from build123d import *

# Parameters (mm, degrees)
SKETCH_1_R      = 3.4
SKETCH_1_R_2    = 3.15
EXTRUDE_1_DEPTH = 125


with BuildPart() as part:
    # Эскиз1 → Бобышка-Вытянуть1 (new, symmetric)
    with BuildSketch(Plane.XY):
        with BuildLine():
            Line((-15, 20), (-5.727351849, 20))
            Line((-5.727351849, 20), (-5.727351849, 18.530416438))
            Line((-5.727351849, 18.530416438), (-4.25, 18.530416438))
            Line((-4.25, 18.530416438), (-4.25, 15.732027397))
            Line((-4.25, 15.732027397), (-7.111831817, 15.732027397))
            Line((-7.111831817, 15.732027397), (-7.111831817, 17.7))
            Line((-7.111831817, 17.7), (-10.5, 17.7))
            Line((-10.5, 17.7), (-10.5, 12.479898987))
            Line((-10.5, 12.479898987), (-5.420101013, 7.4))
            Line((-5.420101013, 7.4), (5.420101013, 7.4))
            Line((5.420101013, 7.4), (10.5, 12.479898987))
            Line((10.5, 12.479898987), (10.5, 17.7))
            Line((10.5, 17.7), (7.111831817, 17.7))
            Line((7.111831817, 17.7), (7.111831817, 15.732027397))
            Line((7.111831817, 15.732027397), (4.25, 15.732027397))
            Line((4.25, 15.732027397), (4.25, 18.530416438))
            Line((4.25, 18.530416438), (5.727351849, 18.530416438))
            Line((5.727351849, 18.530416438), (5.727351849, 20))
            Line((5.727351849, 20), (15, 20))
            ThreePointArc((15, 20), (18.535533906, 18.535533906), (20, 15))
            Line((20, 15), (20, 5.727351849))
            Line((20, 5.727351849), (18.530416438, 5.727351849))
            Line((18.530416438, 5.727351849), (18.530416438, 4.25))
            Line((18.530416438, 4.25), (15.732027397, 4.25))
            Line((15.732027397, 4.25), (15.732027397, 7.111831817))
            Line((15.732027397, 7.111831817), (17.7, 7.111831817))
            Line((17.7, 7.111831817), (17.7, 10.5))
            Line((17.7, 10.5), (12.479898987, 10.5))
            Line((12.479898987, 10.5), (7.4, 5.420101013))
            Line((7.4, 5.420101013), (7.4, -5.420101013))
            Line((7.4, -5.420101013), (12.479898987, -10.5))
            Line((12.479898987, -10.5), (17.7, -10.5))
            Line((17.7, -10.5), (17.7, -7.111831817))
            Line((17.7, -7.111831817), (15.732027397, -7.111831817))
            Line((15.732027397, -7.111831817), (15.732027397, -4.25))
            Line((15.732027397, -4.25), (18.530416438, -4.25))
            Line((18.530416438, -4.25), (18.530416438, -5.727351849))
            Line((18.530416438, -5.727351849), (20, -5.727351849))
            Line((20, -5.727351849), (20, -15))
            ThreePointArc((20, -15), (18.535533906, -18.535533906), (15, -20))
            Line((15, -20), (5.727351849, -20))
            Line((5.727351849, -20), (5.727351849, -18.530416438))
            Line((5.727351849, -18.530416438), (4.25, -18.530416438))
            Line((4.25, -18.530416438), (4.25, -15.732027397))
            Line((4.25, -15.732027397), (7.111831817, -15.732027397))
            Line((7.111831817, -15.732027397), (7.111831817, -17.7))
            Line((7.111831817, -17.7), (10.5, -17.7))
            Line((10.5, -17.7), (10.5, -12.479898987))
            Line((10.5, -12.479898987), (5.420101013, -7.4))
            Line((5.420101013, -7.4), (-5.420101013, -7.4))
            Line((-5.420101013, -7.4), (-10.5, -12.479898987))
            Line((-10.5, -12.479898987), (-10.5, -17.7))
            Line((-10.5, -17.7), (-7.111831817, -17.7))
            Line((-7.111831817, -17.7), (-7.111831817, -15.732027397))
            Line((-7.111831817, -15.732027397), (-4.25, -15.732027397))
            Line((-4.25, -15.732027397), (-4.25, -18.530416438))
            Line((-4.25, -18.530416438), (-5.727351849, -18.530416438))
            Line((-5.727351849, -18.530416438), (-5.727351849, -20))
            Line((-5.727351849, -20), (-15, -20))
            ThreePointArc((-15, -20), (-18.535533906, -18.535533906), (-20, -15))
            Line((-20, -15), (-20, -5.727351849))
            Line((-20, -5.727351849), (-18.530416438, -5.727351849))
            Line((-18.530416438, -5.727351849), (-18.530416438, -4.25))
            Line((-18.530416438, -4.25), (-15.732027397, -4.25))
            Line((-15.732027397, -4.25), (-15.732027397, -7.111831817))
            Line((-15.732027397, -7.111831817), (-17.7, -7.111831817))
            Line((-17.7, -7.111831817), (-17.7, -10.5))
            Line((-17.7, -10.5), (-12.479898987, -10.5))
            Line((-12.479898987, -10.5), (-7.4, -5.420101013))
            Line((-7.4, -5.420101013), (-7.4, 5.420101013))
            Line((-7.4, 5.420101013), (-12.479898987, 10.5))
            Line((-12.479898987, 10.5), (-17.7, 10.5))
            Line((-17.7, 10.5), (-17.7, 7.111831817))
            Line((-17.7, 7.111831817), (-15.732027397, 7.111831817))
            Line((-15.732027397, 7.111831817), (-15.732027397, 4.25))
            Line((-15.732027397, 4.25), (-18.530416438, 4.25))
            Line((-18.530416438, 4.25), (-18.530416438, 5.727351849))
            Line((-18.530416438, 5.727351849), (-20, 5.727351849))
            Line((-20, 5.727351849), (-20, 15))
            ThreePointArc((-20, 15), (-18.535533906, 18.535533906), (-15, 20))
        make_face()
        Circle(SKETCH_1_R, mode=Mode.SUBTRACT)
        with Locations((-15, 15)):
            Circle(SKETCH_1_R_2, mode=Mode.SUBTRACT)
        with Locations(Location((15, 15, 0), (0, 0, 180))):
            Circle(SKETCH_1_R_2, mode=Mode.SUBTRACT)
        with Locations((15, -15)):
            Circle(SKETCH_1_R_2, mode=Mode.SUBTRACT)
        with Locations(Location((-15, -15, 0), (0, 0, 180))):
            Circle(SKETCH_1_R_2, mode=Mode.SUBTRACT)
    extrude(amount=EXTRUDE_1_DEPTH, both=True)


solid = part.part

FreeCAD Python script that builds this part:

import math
import FreeCAD as App
import Part
import Sketcher

V = App.Vector

doc = App.newDocument("Part")
body = doc.addObject("PartDesign::Body", "Body")

sketch1 = body.newObject("Sketcher::SketchObject", "Sketch")
sketch1.AttachmentSupport = (doc.getObject("XY_Plane"), [""])
sketch1.MapMode = "FlatFace"
sketch1.addGeometry(Part.LineSegment(V(-5.727352, 20, 0), V(-15, 20, 0)), False)
sketch1.addGeometry(Part.ArcOfCircle(Part.Circle(V(-15, 15, 0), V(0, 0, 1), 5), math.radians(90), math.radians(180)), False)
sketch1.addGeometry(Part.LineSegment(V(-20, 15, 0), V(-20, 5.727352, 0)), False)
sketch1.addGeometry(Part.LineSegment(V(-20, 5.727352, 0), V(-18.530416, 5.727352, 0)), False)
sketch1.addGeometry(Part.LineSegment(V(-18.530416, 5.727352, 0), V(-18.530416, 4.25, 0)), False)
sketch1.addGeometry(Part.LineSegment(V(-18.530416, 4.25, 0), V(-15.732027, 4.25, 0)), False)
sketch1.addGeometry(Part.LineSegment(V(-15.732027, 4.25, 0), V(-15.732027, 7.111832, 0)), False)
sketch1.addGeometry(Part.LineSegment(V(-15.732027, 7.111832, 0), V(-17.7, 7.111832, 0)), False)
sketch1.addGeometry(Part.LineSegment(V(-17.7, 7.111832, 0), V(-17.7, 10.5, 0)), False)
sketch1.addGeometry(Part.LineSegment(V(-17.7, 10.5, 0), V(-12.479899, 10.5, 0)), False)
sketch1.addGeometry(Part.LineSegment(V(-12.479899, 10.5, 0), V(-7.4, 5.420101, 0)), False)
sketch1.addGeometry(Part.LineSegment(V(-7.4, 5.420101, 0), V(-7.4, -5.420101, 0)), False)
sketch1.addGeometry(Part.LineSegment(V(-7.4, -5.420101, 0), V(-12.479899, -10.5, 0)), False)
sketch1.addGeometry(Part.LineSegment(V(-12.479899, -10.5, 0), V(-17.7, -10.5, 0)), False)
sketch1.addGeometry(Part.LineSegment(V(-17.7, -10.5, 0), V(-17.7, -7.111832, 0)), False)
sketch1.addGeometry(Part.LineSegment(V(-17.7, -7.111832, 0), V(-15.732027, -7.111832, 0)), False)
sketch1.addGeometry(Part.LineSegment(V(-15.732027, -7.111832, 0), V(-15.732027, -4.25, 0)), False)
sketch1.addGeometry(Part.LineSegment(V(-15.732027, -4.25, 0), V(-18.530416, -4.25, 0)), False)
sketch1.addGeometry(Part.LineSegment(V(-18.530416, -4.25, 0), V(-18.530416, -5.727352, 0)), False)
sketch1.addGeometry(Part.LineSegment(V(-18.530416, -5.727352, 0), V(-20, -5.727352, 0)), False)
sketch1.addGeometry(Part.LineSegment(V(-20, -5.727352, 0), V(-20, -15, 0)), False)
sketch1.addGeometry(Part.ArcOfCircle(Part.Circle(V(-15, -15, 0), V(0, 0, 1), 5), math.radians(180), math.radians(270)), False)
sketch1.addGeometry(Part.LineSegment(V(-15, -20, 0), V(-5.727352, -20, 0)), False)
sketch1.addGeometry(Part.LineSegment(V(-5.727352, -20, 0), V(-5.727352, -18.530416, 0)), False)
sketch1.addGeometry(Part.LineSegment(V(-5.727352, -18.530416, 0), V(-4.25, -18.530416, 0)), False)
sketch1.addGeometry(Part.LineSegment(V(-4.25, -18.530416, 0), V(-4.25, -15.732027, 0)), False)
sketch1.addGeometry(Part.LineSegment(V(-4.25, -15.732027, 0), V(-7.111832, -15.732027, 0)), False)
sketch1.addGeometry(Part.LineSegment(V(-7.111832, -15.732027, 0), V(-7.111832, -17.7, 0)), False)
sketch1.addGeometry(Part.LineSegment(V(-7.111832, -17.7, 0), V(-10.5, -17.7, 0)), False)
sketch1.addGeometry(Part.LineSegment(V(-10.5, -17.7, 0), V(-10.5, -12.479899, 0)), False)
sketch1.addGeometry(Part.LineSegment(V(-10.5, -12.479899, 0), V(-5.420101, -7.4, 0)), False)
sketch1.addGeometry(Part.LineSegment(V(-5.420101, -7.4, 0), V(5.420101, -7.4, 0)), False)
sketch1.addGeometry(Part.LineSegment(V(5.420101, -7.4, 0), V(10.5, -12.479899, 0)), False)
sketch1.addGeometry(Part.LineSegment(V(10.5, -12.479899, 0), V(10.5, -17.7, 0)), False)
sketch1.addGeometry(Part.LineSegment(V(10.5, -17.7, 0), V(7.111832, -17.7, 0)), False)
sketch1.addGeometry(Part.LineSegment(V(7.111832, -17.7, 0), V(7.111832, -15.732027, 0)), False)
sketch1.addGeometry(Part.LineSegment(V(7.111832, -15.732027, 0), V(4.25, -15.732027, 0)), False)
sketch1.addGeometry(Part.LineSegment(V(4.25, -15.732027, 0), V(4.25, -18.530416, 0)), False)
sketch1.addGeometry(Part.LineSegment(V(4.25, -18.530416, 0), V(5.727352, -18.530416, 0)), False)
sketch1.addGeometry(Part.LineSegment(V(5.727352, -18.530416, 0), V(5.727352, -20, 0)), False)
sketch1.addGeometry(Part.LineSegment(V(5.727352, -20, 0), V(15, -20, 0)), False)
sketch1.addGeometry(Part.ArcOfCircle(Part.Circle(V(15, -15, 0), V(0, 0, 1), 5), math.radians(-90), math.radians(0)), False)
sketch1.addGeometry(Part.LineSegment(V(20, -15, 0), V(20, -5.727352, 0)), False)
sketch1.addGeometry(Part.LineSegment(V(20, -5.727352, 0), V(18.530416, -5.727352, 0)), False)
sketch1.addGeometry(Part.LineSegment(V(18.530416, -5.727352, 0), V(18.530416, -4.25, 0)), False)
sketch1.addGeometry(Part.LineSegment(V(18.530416, -4.25, 0), V(15.732027, -4.25, 0)), False)
sketch1.addGeometry(Part.LineSegment(V(15.732027, -4.25, 0), V(15.732027, -7.111832, 0)), False)
sketch1.addGeometry(Part.LineSegment(V(15.732027, -7.111832, 0), V(17.7, -7.111832, 0)), False)
sketch1.addGeometry(Part.LineSegment(V(17.7, -7.111832, 0), V(17.7, -10.5, 0)), False)
sketch1.addGeometry(Part.LineSegment(V(17.7, -10.5, 0), V(12.479899, -10.5, 0)), False)
sketch1.addGeometry(Part.LineSegment(V(12.479899, -10.5, 0), V(7.4, -5.420101, 0)), False)
sketch1.addGeometry(Part.LineSegment(V(7.4, -5.420101, 0), V(7.4, 5.420101, 0)), False)
sketch1.addGeometry(Part.LineSegment(V(7.4, 5.420101, 0), V(12.479899, 10.5, 0)), False)
sketch1.addGeometry(Part.LineSegment(V(12.479899, 10.5, 0), V(17.7, 10.5, 0)), False)
sketch1.addGeometry(Part.LineSegment(V(17.7, 10.5, 0), V(17.7, 7.111832, 0)), False)
sketch1.addGeometry(Part.LineSegment(V(17.7, 7.111832, 0), V(15.732027, 7.111832, 0)), False)
sketch1.addGeometry(Part.LineSegment(V(15.732027, 7.111832, 0), V(15.732027, 4.25, 0)), False)
sketch1.addGeometry(Part.LineSegment(V(15.732027, 4.25, 0), V(18.530416, 4.25, 0)), False)
sketch1.addGeometry(Part.LineSegment(V(18.530416, 4.25, 0), V(18.530416, 5.727352, 0)), False)
sketch1.addGeometry(Part.LineSegment(V(18.530416, 5.727352, 0), V(20, 5.727352, 0)), False)
sketch1.addGeometry(Part.LineSegment(V(20, 5.727352, 0), V(20, 15, 0)), False)
sketch1.addGeometry(Part.ArcOfCircle(Part.Circle(V(15, 15, 0), V(0, 0, 1), 5), math.radians(0), math.radians(90)), False)
sketch1.addGeometry(Part.LineSegment(V(15, 20, 0), V(5.727352, 20, 0)), False)
sketch1.addGeometry(Part.LineSegment(V(5.727352, 20, 0), V(5.727352, 18.530416, 0)), False)
sketch1.addGeometry(Part.LineSegment(V(5.727352, 18.530416, 0), V(4.25, 18.530416, 0)), False)
sketch1.addGeometry(Part.LineSegment(V(4.25, 18.530416, 0), V(4.25, 15.732027, 0)), False)
sketch1.addGeometry(Part.LineSegment(V(4.25, 15.732027, 0), V(7.111832, 15.732027, 0)), False)
sketch1.addGeometry(Part.LineSegment(V(7.111832, 15.732027, 0), V(7.111832, 17.7, 0)), False)
sketch1.addGeometry(Part.LineSegment(V(7.111832, 17.7, 0), V(10.5, 17.7, 0)), False)
sketch1.addGeometry(Part.LineSegment(V(10.5, 17.7, 0), V(10.5, 12.479899, 0)), False)
sketch1.addGeometry(Part.LineSegment(V(10.5, 12.479899, 0), V(5.420101, 7.4, 0)), False)
sketch1.addGeometry(Part.LineSegment(V(5.420101, 7.4, 0), V(-5.420101, 7.4, 0)), False)
sketch1.addGeometry(Part.LineSegment(V(-5.420101, 7.4, 0), V(-10.5, 12.479899, 0)), False)
sketch1.addGeometry(Part.LineSegment(V(-10.5, 12.479899, 0), V(-10.5, 17.7, 0)), False)
sketch1.addGeometry(Part.LineSegment(V(-10.5, 17.7, 0), V(-7.111832, 17.7, 0)), False)
sketch1.addGeometry(Part.LineSegment(V(-7.111832, 17.7, 0), V(-7.111832, 15.732027, 0)), False)
sketch1.addGeometry(Part.LineSegment(V(-7.111832, 15.732027, 0), V(-4.25, 15.732027, 0)), False)
sketch1.addGeometry(Part.LineSegment(V(-4.25, 15.732027, 0), V(-4.25, 18.530416, 0)), False)
sketch1.addGeometry(Part.LineSegment(V(-4.25, 18.530416, 0), V(-5.727352, 18.530416, 0)), False)
sketch1.addGeometry(Part.LineSegment(V(-5.727352, 18.530416, 0), V(-5.727352, 20, 0)), False)
sketch1.addGeometry(Part.Circle(V(15, -15, 0), V(0, 0, 1), 3.15), False)
sketch1.addGeometry(Part.Circle(V(-15, -15, 0), V(0, 0, 1), 3.15), False)
sketch1.addGeometry(Part.Circle(V(15, 15, 0), V(0, 0, 1), 3.15), False)
sketch1.addGeometry(Part.Circle(V(0, 0, 0), V(0, 0, 1), 3.4), False)
sketch1.addGeometry(Part.Circle(V(-15, 15, 0), V(0, 0, 1), 3.15), False)
sketch1.addConstraint(Sketcher.Constraint("Tangent", 0, 2, 1, 1))
sketch1.addConstraint(Sketcher.Constraint("Tangent", 1, 2, 2, 1))
sketch1.addConstraint(Sketcher.Constraint("Coincident", 2, 2, 3, 1))
sketch1.addConstraint(Sketcher.Constraint("Coincident", 3, 2, 4, 1))
sketch1.addConstraint(Sketcher.Constraint("Coincident", 4, 2, 5, 1))
sketch1.addConstraint(Sketcher.Constraint("Coincident", 5, 2, 6, 1))
sketch1.addConstraint(Sketcher.Constraint("Coincident", 6, 2, 7, 1))
sketch1.addConstraint(Sketcher.Constraint("Coincident", 7, 2, 8, 1))
sketch1.addConstraint(Sketcher.Constraint("Coincident", 8, 2, 9, 1))
sketch1.addConstraint(Sketcher.Constraint("Coincident", 9, 2, 10, 1))
sketch1.addConstraint(Sketcher.Constraint("Coincident", 10, 2, 11, 1))
sketch1.addConstraint(Sketcher.Constraint("Coincident", 11, 2, 12, 1))
sketch1.addConstraint(Sketcher.Constraint("Coincident", 12, 2, 13, 1))
sketch1.addConstraint(Sketcher.Constraint("Coincident", 13, 2, 14, 1))
sketch1.addConstraint(Sketcher.Constraint("Coincident", 14, 2, 15, 1))
sketch1.addConstraint(Sketcher.Constraint("Coincident", 15, 2, 16, 1))
sketch1.addConstraint(Sketcher.Constraint("Coincident", 16, 2, 17, 1))
sketch1.addConstraint(Sketcher.Constraint("Coincident", 17, 2, 18, 1))
sketch1.addConstraint(Sketcher.Constraint("Coincident", 18, 2, 19, 1))
sketch1.addConstraint(Sketcher.Constraint("Coincident", 19, 2, 20, 1))
sketch1.addConstraint(Sketcher.Constraint("Tangent", 20, 2, 21, 1))
sketch1.addConstraint(Sketcher.Constraint("Tangent", 21, 2, 22, 1))
sketch1.addConstraint(Sketcher.Constraint("Coincident", 22, 2, 23, 1))
sketch1.addConstraint(Sketcher.Constraint("Coincident", 23, 2, 24, 1))
sketch1.addConstraint(Sketcher.Constraint("Coincident", 24, 2, 25, 1))
sketch1.addConstraint(Sketcher.Constraint("Coincident", 25, 2, 26, 1))
sketch1.addConstraint(Sketcher.Constraint("Coincident", 26, 2, 27, 1))
sketch1.addConstraint(Sketcher.Constraint("Coincident", 27, 2, 28, 1))
sketch1.addConstraint(Sketcher.Constraint("Coincident", 28, 2, 29, 1))
sketch1.addConstraint(Sketcher.Constraint("Coincident", 29, 2, 30, 1))
sketch1.addConstraint(Sketcher.Constraint("Coincident", 30, 2, 31, 1))
sketch1.addConstraint(Sketcher.Constraint("Coincident", 31, 2, 32, 1))
sketch1.addConstraint(Sketcher.Constraint("Coincident", 32, 2, 33, 1))
sketch1.addConstraint(Sketcher.Constraint("Coincident", 33, 2, 34, 1))
sketch1.addConstraint(Sketcher.Constraint("Coincident", 34, 2, 35, 1))
sketch1.addConstraint(Sketcher.Constraint("Coincident", 35, 2, 36, 1))
sketch1.addConstraint(Sketcher.Constraint("Coincident", 36, 2, 37, 1))
sketch1.addConstraint(Sketcher.Constraint("Coincident", 37, 2, 38, 1))
sketch1.addConstraint(Sketcher.Constraint("Coincident", 38, 2, 39, 1))
sketch1.addConstraint(Sketcher.Constraint("Coincident", 39, 2, 40, 1))
sketch1.addConstraint(Sketcher.Constraint("Tangent", 40, 2, 41, 1))
sketch1.addConstraint(Sketcher.Constraint("Tangent", 41, 2, 42, 1))
sketch1.addConstraint(Sketcher.Constraint("Coincident", 42, 2, 43, 1))
sketch1.addConstraint(Sketcher.Constraint("Coincident", 43, 2, 44, 1))
sketch1.addConstraint(Sketcher.Constraint("Coincident", 44, 2, 45, 1))
sketch1.addConstraint(Sketcher.Constraint("Coincident", 45, 2, 46, 1))
sketch1.addConstraint(Sketcher.Constraint("Coincident", 46, 2, 47, 1))
sketch1.addConstraint(Sketcher.Constraint("Coincident", 47, 2, 48, 1))
sketch1.addConstraint(Sketcher.Constraint("Coincident", 48, 2, 49, 1))
sketch1.addConstraint(Sketcher.Constraint("Coincident", 49, 2, 50, 1))
sketch1.addConstraint(Sketcher.Constraint("Coincident", 50, 2, 51, 1))
sketch1.addConstraint(Sketcher.Constraint("Coincident", 51, 2, 52, 1))
sketch1.addConstraint(Sketcher.Constraint("Coincident", 52, 2, 53, 1))
sketch1.addConstraint(Sketcher.Constraint("Coincident", 53, 2, 54, 1))
sketch1.addConstraint(Sketcher.Constraint("Coincident", 54, 2, 55, 1))
sketch1.addConstraint(Sketcher.Constraint("Coincident", 55, 2, 56, 1))
sketch1.addConstraint(Sketcher.Constraint("Coincident", 56, 2, 57, 1))
sketch1.addConstraint(Sketcher.Constraint("Coincident", 57, 2, 58, 1))
sketch1.addConstraint(Sketcher.Constraint("Coincident", 58, 2, 59, 1))
sketch1.addConstraint(Sketcher.Constraint("Coincident", 59, 2, 60, 1))
sketch1.addConstraint(Sketcher.Constraint("Tangent", 60, 2, 61, 1))
sketch1.addConstraint(Sketcher.Constraint("Tangent", 61, 2, 62, 1))
sketch1.addConstraint(Sketcher.Constraint("Coincident", 62, 2, 63, 1))
sketch1.addConstraint(Sketcher.Constraint("Coincident", 63, 2, 64, 1))
sketch1.addConstraint(Sketcher.Constraint("Coincident", 64, 2, 65, 1))
sketch1.addConstraint(Sketcher.Constraint("Coincident", 65, 2, 66, 1))
sketch1.addConstraint(Sketcher.Constraint("Coincident", 66, 2, 67, 1))
sketch1.addConstraint(Sketcher.Constraint("Coincident", 67, 2, 68, 1))
sketch1.addConstraint(Sketcher.Constraint("Coincident", 68, 2, 69, 1))
sketch1.addConstraint(Sketcher.Constraint("Coincident", 69, 2, 70, 1))
sketch1.addConstraint(Sketcher.Constraint("Coincident", 70, 2, 71, 1))
sketch1.addConstraint(Sketcher.Constraint("Coincident", 71, 2, 72, 1))
sketch1.addConstraint(Sketcher.Constraint("Coincident", 72, 2, 73, 1))
sketch1.addConstraint(Sketcher.Constraint("Coincident", 73, 2, 74, 1))
sketch1.addConstraint(Sketcher.Constraint("Coincident", 74, 2, 75, 1))
sketch1.addConstraint(Sketcher.Constraint("Coincident", 75, 2, 76, 1))
sketch1.addConstraint(Sketcher.Constraint("Coincident", 76, 2, 77, 1))
sketch1.addConstraint(Sketcher.Constraint("Coincident", 77, 2, 78, 1))
sketch1.addConstraint(Sketcher.Constraint("Coincident", 78, 2, 79, 1))
sketch1.addConstraint(Sketcher.Constraint("Coincident", 79, 2, 0, 1))
sketch1.addConstraint(Sketcher.Constraint("Horizontal", 0))
sketch1.addConstraint(Sketcher.Constraint("Vertical", 2))
sketch1.addConstraint(Sketcher.Constraint("Horizontal", 3))
sketch1.addConstraint(Sketcher.Constraint("Vertical", 4))
sketch1.addConstraint(Sketcher.Constraint("Horizontal", 5))
sketch1.addConstraint(Sketcher.Constraint("Vertical", 6))
sketch1.addConstraint(Sketcher.Constraint("Horizontal", 7))
sketch1.addConstraint(Sketcher.Constraint("Vertical", 8))
sketch1.addConstraint(Sketcher.Constraint("Horizontal", 9))
sketch1.addConstraint(Sketcher.Constraint("Vertical", 11))
sketch1.addConstraint(Sketcher.Constraint("Horizontal", 13))
sketch1.addConstraint(Sketcher.Constraint("Vertical", 14))
sketch1.addConstraint(Sketcher.Constraint("Horizontal", 15))
sketch1.addConstraint(Sketcher.Constraint("Vertical", 16))
sketch1.addConstraint(Sketcher.Constraint("Horizontal", 17))
sketch1.addConstraint(Sketcher.Constraint("Vertical", 18))
sketch1.addConstraint(Sketcher.Constraint("Horizontal", 19))
sketch1.addConstraint(Sketcher.Constraint("Vertical", 20))
sketch1.addConstraint(Sketcher.Constraint("Horizontal", 22))
sketch1.addConstraint(Sketcher.Constraint("Vertical", 23))
sketch1.addConstraint(Sketcher.Constraint("Horizontal", 24))
sketch1.addConstraint(Sketcher.Constraint("Vertical", 25))
sketch1.addConstraint(Sketcher.Constraint("Horizontal", 26))
sketch1.addConstraint(Sketcher.Constraint("Vertical", 27))
sketch1.addConstraint(Sketcher.Constraint("Horizontal", 28))
sketch1.addConstraint(Sketcher.Constraint("Vertical", 29))
sketch1.addConstraint(Sketcher.Constraint("Horizontal", 31))
sketch1.addConstraint(Sketcher.Constraint("Vertical", 33))
sketch1.addConstraint(Sketcher.Constraint("Horizontal", 34))
sketch1.addConstraint(Sketcher.Constraint("Vertical", 35))
sketch1.addConstraint(Sketcher.Constraint("Horizontal", 36))
sketch1.addConstraint(Sketcher.Constraint("Vertical", 37))
sketch1.addConstraint(Sketcher.Constraint("Horizontal", 38))
sketch1.addConstraint(Sketcher.Constraint("Vertical", 39))
sketch1.addConstraint(Sketcher.Constraint("Horizontal", 40))
sketch1.addConstraint(Sketcher.Constraint("Vertical", 42))
sketch1.addConstraint(Sketcher.Constraint("Horizontal", 43))
sketch1.addConstraint(Sketcher.Constraint("Vertical", 44))
sketch1.addConstraint(Sketcher.Constraint("Horizontal", 45))
sketch1.addConstraint(Sketcher.Constraint("Vertical", 46))
sketch1.addConstraint(Sketcher.Constraint("Horizontal", 47))
sketch1.addConstraint(Sketcher.Constraint("Vertical", 48))
sketch1.addConstraint(Sketcher.Constraint("Horizontal", 49))
sketch1.addConstraint(Sketcher.Constraint("Vertical", 51))
sketch1.addConstraint(Sketcher.Constraint("Horizontal", 53))
sketch1.addConstraint(Sketcher.Constraint("Vertical", 54))
sketch1.addConstraint(Sketcher.Constraint("Horizontal", 55))
sketch1.addConstraint(Sketcher.Constraint("Vertical", 56))
sketch1.addConstraint(Sketcher.Constraint("Horizontal", 57))
sketch1.addConstraint(Sketcher.Constraint("Vertical", 58))
sketch1.addConstraint(Sketcher.Constraint("Horizontal", 59))
sketch1.addConstraint(Sketcher.Constraint("Vertical", 60))
sketch1.addConstraint(Sketcher.Constraint("Horizontal", 62))
sketch1.addConstraint(Sketcher.Constraint("Vertical", 63))
sketch1.addConstraint(Sketcher.Constraint("Horizontal", 64))
sketch1.addConstraint(Sketcher.Constraint("Vertical", 65))
sketch1.addConstraint(Sketcher.Constraint("Horizontal", 66))
sketch1.addConstraint(Sketcher.Constraint("Vertical", 67))
sketch1.addConstraint(Sketcher.Constraint("Horizontal", 68))
sketch1.addConstraint(Sketcher.Constraint("Vertical", 69))
sketch1.addConstraint(Sketcher.Constraint("Horizontal", 71))
sketch1.addConstraint(Sketcher.Constraint("Vertical", 73))
sketch1.addConstraint(Sketcher.Constraint("Horizontal", 74))
sketch1.addConstraint(Sketcher.Constraint("Vertical", 75))
sketch1.addConstraint(Sketcher.Constraint("Horizontal", 76))
sketch1.addConstraint(Sketcher.Constraint("Vertical", 77))
sketch1.addConstraint(Sketcher.Constraint("Horizontal", 78))
sketch1.addConstraint(Sketcher.Constraint("Vertical", 79))
sketch1.addConstraint(Sketcher.Constraint("Coincident", 83, 3, -1, 1))
sketch1.addConstraint(Sketcher.Constraint("Coincident", 80, 3, 41, 3))
sketch1.addConstraint(Sketcher.Constraint("Coincident", 81, 3, 21, 3))
sketch1.addConstraint(Sketcher.Constraint("Coincident", 82, 3, 61, 3))
sketch1.addConstraint(Sketcher.Constraint("Coincident", 84, 3, 1, 3))
sketch1.addConstraint(Sketcher.Constraint("Equal", 1, 21))
sketch1.addConstraint(Sketcher.Constraint("Equal", 21, 41))
sketch1.addConstraint(Sketcher.Constraint("Equal", 41, 61))
sketch1.addConstraint(Sketcher.Constraint("Equal", 80, 81))
sketch1.addConstraint(Sketcher.Constraint("Equal", 81, 82))
sketch1.addConstraint(Sketcher.Constraint("Equal", 82, 84))
sketch1.addConstraint(Sketcher.Constraint("Symmetric", 1, 3, 41, 3, -1, 1))
sketch1.addConstraint(Sketcher.Constraint("Symmetric", 21, 3, 61, 3, -1, 1))
sketch1.addConstraint(Sketcher.Constraint("Symmetric", 3, 2, 43, 2, -1, 1))
sketch1.addConstraint(Sketcher.Constraint("Symmetric", 5, 2, 45, 2, -1, 1))
sketch1.addConstraint(Sketcher.Constraint("Symmetric", 7, 2, 47, 2, -1, 1))
sketch1.addConstraint(Sketcher.Constraint("Symmetric", 9, 2, 49, 2, -1, 1))
sketch1.addConstraint(Sketcher.Constraint("Symmetric", 10, 2, 50, 2, -1, 1))
sketch1.addConstraint(Sketcher.Constraint("Symmetric", 12, 2, 52, 2, -1, 1))
sketch1.addConstraint(Sketcher.Constraint("Symmetric", 14, 2, 54, 2, -1, 1))
sketch1.addConstraint(Sketcher.Constraint("Symmetric", 16, 2, 56, 2, -1, 1))
sketch1.addConstraint(Sketcher.Constraint("Symmetric", 18, 2, 58, 2, -1, 1))
sketch1.addConstraint(Sketcher.Constraint("Symmetric", 23, 2, 63, 2, -1, 1))
sketch1.addConstraint(Sketcher.Constraint("Symmetric", 25, 2, 65, 2, -1, 1))
sketch1.addConstraint(Sketcher.Constraint("Symmetric", 27, 2, 67, 2, -1, 1))
sketch1.addConstraint(Sketcher.Constraint("Symmetric", 29, 2, 69, 2, -1, 1))
sketch1.addConstraint(Sketcher.Constraint("Symmetric", 30, 2, 70, 2, -1, 1))
sketch1.addConstraint(Sketcher.Constraint("Symmetric", 32, 2, 72, 2, -1, 1))
sketch1.addConstraint(Sketcher.Constraint("Symmetric", 34, 2, 74, 2, -1, 1))
sketch1.addConstraint(Sketcher.Constraint("Symmetric", 36, 2, 76, 2, -1, 1))
sketch1.addConstraint(Sketcher.Constraint("Symmetric", 38, 2, 78, 2, -1, 1))
sketch1.addConstraint(Sketcher.Constraint("Symmetric", 21, 3, 41, 3, -2))
sketch1.addConstraint(Sketcher.Constraint("Symmetric", 29, 2, 32, 2, -2))
sketch1.addConstraint(Sketcher.Constraint("Symmetric", 27, 2, 34, 2, -2))
sketch1.addConstraint(Sketcher.Constraint("Symmetric", 25, 2, 36, 2, -2))
sketch1.addConstraint(Sketcher.Constraint("Symmetric", 23, 2, 38, 2, -2))
sketch1.addConstraint(Sketcher.Constraint("Symmetric", 18, 2, 43, 2, -2))
sketch1.addConstraint(Sketcher.Constraint("Symmetric", 16, 2, 45, 2, -2))
sketch1.addConstraint(Sketcher.Constraint("Symmetric", 14, 2, 47, 2, -2))
sketch1.addConstraint(Sketcher.Constraint("Symmetric", 12, 2, 49, 2, -2))
sketch1.addConstraint(Sketcher.Constraint("Perpendicular", 10, 12))
sketch1.addConstraint(Sketcher.Constraint("Parallel", 12, 30))
sketch1.addConstraint(Sketcher.Constraint("Perpendicular", 30, 32))
sketch1.addConstraint(Sketcher.Constraint("Perpendicular", 50, 52))
sketch1.addConstraint(Sketcher.Constraint("Perpendicular", 70, 72))
sketch1.addConstraint(Sketcher.Constraint("Horizontal", 11, 2, 50, 2))
sketch1.addConstraint(Sketcher.Constraint("Equal", 62, 2))
sketch1.addConstraint(Sketcher.Constraint("Equal", 78, 4))
sketch1.addConstraint(Sketcher.Constraint("Equal", 76, 6))
sketch1.addConstraint(Sketcher.Constraint("Equal", 74, 8))
sketch1.addConstraint(Sketcher.Constraint("Equal", 71, 11))
sketch1.addConstraint(Sketcher.Constraint("Equal", 59, 23))
sketch1.addConstraint(Sketcher.Constraint("Equal", 57, 25))
sketch1.addConstraint(Sketcher.Constraint("Equal", 55, 27))
sketch1.addConstraint(Sketcher.Constraint("Equal", 53, 29))
sketch1.addConstraint(Sketcher.Constraint("Equal", 12, 30))
sketch1.addConstraint(Sketcher.Constraint("Radius", 1, 5.0))
sketch1.addConstraint(Sketcher.Constraint("Diameter", 80, 6.3))
sketch1.addConstraint(Sketcher.Constraint("Diameter", 83, 6.8))
sketch1.addConstraint(Sketcher.Constraint("DistanceX", 1, 3, -1, 1, 15.0))
sketch1.addConstraint(Sketcher.Constraint("DistanceX", 7, 2, -1, 1, 17.7))
sketch1.addConstraint(Sketcher.Constraint("DistanceY", -1, 1, 8, 2, 10.5))
sketch1.addConstraint(Sketcher.Constraint("DistanceX", 10, 2, -1, 1, 7.4))
sketch1.addConstraint(Sketcher.Constraint("DistanceY", -1, 1, 4, 2, 4.25))
sketch1.addConstraint(Sketcher.Constraint("DistanceX", 9, 1, 9, 2, 5.220101))
sketch1.addConstraint(Sketcher.Constraint("DistanceX", 0, 2, 0, 1, 9.272648))
sketch1.addConstraint(Sketcher.Constraint("DistanceX", 5, 1, 5, 2, 2.798389))
sketch1.addConstraint(Sketcher.Constraint("DistanceX", 26, 2, 26, 1, 2.861832))
sketch1.addConstraint(Sketcher.Constraint("DistanceX", 3, 1, 3, 2, 1.469584))
pad1 = body.newObject("PartDesign::Pad", "Pad")
pad1.Profile = sketch1
pad1.Length = 250
pad1.Midplane = True

doc.recompute()
